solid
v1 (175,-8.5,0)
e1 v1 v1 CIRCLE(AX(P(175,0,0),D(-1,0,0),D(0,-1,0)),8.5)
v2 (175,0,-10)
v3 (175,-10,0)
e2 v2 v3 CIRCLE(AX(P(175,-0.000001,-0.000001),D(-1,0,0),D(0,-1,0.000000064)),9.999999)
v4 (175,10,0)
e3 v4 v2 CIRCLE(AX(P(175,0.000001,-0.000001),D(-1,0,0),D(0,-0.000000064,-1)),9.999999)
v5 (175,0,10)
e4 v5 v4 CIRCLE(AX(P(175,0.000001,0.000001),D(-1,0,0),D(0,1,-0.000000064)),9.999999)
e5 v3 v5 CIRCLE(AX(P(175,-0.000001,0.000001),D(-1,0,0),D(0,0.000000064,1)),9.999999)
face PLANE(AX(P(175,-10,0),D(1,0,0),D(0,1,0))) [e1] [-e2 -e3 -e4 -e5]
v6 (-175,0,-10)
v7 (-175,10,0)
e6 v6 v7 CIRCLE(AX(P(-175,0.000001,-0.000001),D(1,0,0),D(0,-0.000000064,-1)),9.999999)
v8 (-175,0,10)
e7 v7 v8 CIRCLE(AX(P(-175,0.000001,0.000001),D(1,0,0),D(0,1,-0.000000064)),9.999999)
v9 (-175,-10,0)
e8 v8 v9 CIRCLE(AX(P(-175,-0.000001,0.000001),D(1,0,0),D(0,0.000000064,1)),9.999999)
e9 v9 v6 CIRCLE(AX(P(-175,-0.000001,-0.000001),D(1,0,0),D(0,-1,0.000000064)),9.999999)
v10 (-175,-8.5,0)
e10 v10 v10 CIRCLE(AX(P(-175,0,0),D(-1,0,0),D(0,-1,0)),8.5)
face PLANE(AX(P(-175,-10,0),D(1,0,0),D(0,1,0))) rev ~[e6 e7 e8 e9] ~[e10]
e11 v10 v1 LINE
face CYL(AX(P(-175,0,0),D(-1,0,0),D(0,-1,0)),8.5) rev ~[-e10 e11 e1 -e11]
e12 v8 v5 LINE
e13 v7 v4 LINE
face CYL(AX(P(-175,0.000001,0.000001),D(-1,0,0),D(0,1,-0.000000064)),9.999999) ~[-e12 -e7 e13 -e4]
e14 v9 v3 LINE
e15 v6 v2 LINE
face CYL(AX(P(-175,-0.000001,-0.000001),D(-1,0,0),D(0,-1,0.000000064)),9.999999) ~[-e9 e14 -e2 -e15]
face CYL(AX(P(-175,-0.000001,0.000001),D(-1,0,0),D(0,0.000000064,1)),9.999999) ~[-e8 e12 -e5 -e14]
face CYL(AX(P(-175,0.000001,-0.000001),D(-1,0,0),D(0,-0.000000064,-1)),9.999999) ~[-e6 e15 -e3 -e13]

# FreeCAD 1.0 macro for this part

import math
import FreeCAD as App
import Part
import Sketcher
Q = App.Units.Quantity

doc = App.newDocument("Part")
body = doc.addObject("PartDesign::Body", "Body")

# Sketch on XY plane
sketch1 = doc.addObject("Sketcher::SketchObject", "Sketch")
body.addObject(sketch1)
sketch1.AttachmentSupport = (doc.XY_Plane, [""])
sketch1.MapMode = "FlatFace"
sketch1.addGeometry(Part.LineSegment(App.Vector(-175, 10, 0), App.Vector(-175, -10, 0)), False)
sketch1.addGeometry(Part.LineSegment(App.Vector(-175, -10, 0), App.Vector(175, -10, 0)), False)
sketch1.addGeometry(Part.LineSegment(App.Vector(175, -10, 0), App.Vector(175, 10, 0)), False)
sketch1.addGeometry(Part.LineSegment(App.Vector(175, 10, 0), App.Vector(-175, 10, 0)), False)
sketch1.addConstraint(Sketcher.Constraint("Coincident", 0, 2, 1, 1))
sketch1.addConstraint(Sketcher.Constraint("Coincident", 1, 2, 2, 1))
sketch1.addConstraint(Sketcher.Constraint("Coincident", 2, 2, 3, 1))
sketch1.addConstraint(Sketcher.Constraint("Coincident", 3, 2, 0, 1))
sketch1.addConstraint(Sketcher.Constraint("Vertical", 0))
sketch1.addConstraint(Sketcher.Constraint("Horizontal", 1))
sketch1.addConstraint(Sketcher.Constraint("Vertical", 2))
sketch1.addConstraint(Sketcher.Constraint("Horizontal", 3))
sketch1.addConstraint(Sketcher.Constraint("Symmetric", 0, 2, 2, 2, -1, 1))
sketch1.addConstraint(Sketcher.Constraint("DistanceX", 1, 1, 1, 2, Q("350 mm")))
sketch1.addConstraint(Sketcher.Constraint("DistanceY", 0, 2, 0, 1, Q("20 mm")))
pad1 = doc.addObject("PartDesign::Pad", "Pad")
body.addObject(pad1)
pad1.Profile = sketch1
pad1.Type = "TwoLengths"
pad1.Length = 10
pad1.Length2 = 10

# Sketch on YZ plane
sketch2 = doc.addObject("Sketcher::SketchObject", "Sketch001")
body.addObject(sketch2)
sketch2.AttachmentSupport = (doc.YZ_Plane, [""])
sketch2.MapMode = "FlatFace"
sketch2.AttachmentOffset = App.Placement(App.Vector(0, 0, -175), App.Rotation())
sketch2.addGeometry(Part.ArcOfCircle(Part.Circle(App.Vector(0, 0, 0), App.Vector(0, 0, 1), 10), math.radians(90), math.radians(180)), False)
sketch2.addGeometry(Part.LineSegment(App.Vector(-10, 0, 0), App.Vector(-10, 10, 0)), False)
sketch2.addGeometry(Part.LineSegment(App.Vector(-10, 10, 0), App.Vector(0, 10, 0)), False)
sketch2.addGeometry(Part.LineSegment(App.Vector(-10, -10, 0), App.Vector(-10, 0, 0)), False)
sketch2.addGeometry(Part.ArcOfCircle(Part.Circle(App.Vector(0, 0, 0), App.Vector(0, 0, 1), 10), math.radians(180), math.radians(270)), False)
sketch2.addGeometry(Part.LineSegment(App.Vector(0, -10, 0), App.Vector(-10, -10, 0)), False)
sketch2.addGeometry(Part.ArcOfCircle(Part.Circle(App.Vector(0, 0, 0), App.Vector(0, 0, 1), 10), math.radians(0), math.radians(90)), False)
sketch2.addGeometry(Part.LineSegment(App.Vector(0, 10, 0), App.Vector(10, 10, 0)), False)
sketch2.addGeometry(Part.LineSegment(App.Vector(10, 10, 0), App.Vector(10, 0, 0)), False)
sketch2.addGeometry(Part.LineSegment(App.Vector(10, -10, 0), App.Vector(0, -10, 0)), False)
sketch2.addGeometry(Part.ArcOfCircle(Part.Circle(App.Vector(0, 0, 0), App.Vector(0, 0, 1), 10), math.radians(-90), math.radians(0)), False)
sketch2.addGeometry(Part.LineSegment(App.Vector(10, 0, 0), App.Vector(10, -10, 0)), False)
sketch2.addGeometry(Part.Circle(App.Vector(0, 0, 0), App.Vector(0, 0, 1), 8), False)
sketch2.addConstraint(Sketcher.Constraint("Tangent", 0, 2, 1, 1))
sketch2.addConstraint(Sketcher.Constraint("Coincident", 1, 2, 2, 1))
sketch2.addConstraint(Sketcher.Constraint("Tangent", 2, 2, 0, 1))
sketch2.addConstraint(Sketcher.Constraint("Tangent", 3, 2, 4, 1))
sketch2.addConstraint(Sketcher.Constraint("Tangent", 4, 2, 5, 1))
sketch2.addConstraint(Sketcher.Constraint("Coincident", 5, 2, 3, 1))
sketch2.addConstraint(Sketcher.Constraint("Tangent", 6, 2, 7, 1))
sketch2.addConstraint(Sketcher.Constraint("Coincident", 7, 2, 8, 1))
sketch2.addConstraint(Sketcher.Constraint("Tangent", 8, 2, 6, 1))
sketch2.addConstraint(Sketcher.Constraint("Tangent", 9, 2, 10, 1))
sketch2.addConstraint(Sketcher.Constraint("Tangent", 10, 2, 11, 1))
sketch2.addConstraint(Sketcher.Constraint("Coincident", 11, 2, 9, 1))
sketch2.addConstraint(Sketcher.Constraint("Vertical", 1))
sketch2.addConstraint(Sketcher.Constraint("Horizontal", 2))
sketch2.addConstraint(Sketcher.Constraint("Vertical", 3))
sketch2.addConstraint(Sketcher.Constraint("Horizontal", 5))
sketch2.addConstraint(Sketcher.Constraint("Horizontal", 7))
sketch2.addConstraint(Sketcher.Constraint("Vertical", 8))
sketch2.addConstraint(Sketcher.Constraint("Horizontal", 9))
sketch2.addConstraint(Sketcher.Constraint("Vertical", 11))
sketch2.addConstraint(Sketcher.Constraint("Coincident", 0, 3, -1, 1))
sketch2.addConstraint(Sketcher.Constraint("Coincident", 4, 3, -1, 1))
sketch2.addConstraint(Sketcher.Constraint("Coincident", 6, 3, -1, 1))
sketch2.addConstraint(Sketcher.Constraint("Coincident", 10, 3, -1, 1))
sketch2.addConstraint(Sketcher.Constraint("Coincident", 12, 3, -1, 1))
sketch2.addConstraint(Sketcher.Constraint("Equal", 0, 4))
sketch2.addConstraint(Sketcher.Constraint("Equal", 4, 6))
sketch2.addConstraint(Sketcher.Constraint("Equal", 6, 10))
sketch2.addConstraint(Sketcher.Constraint("Diameter", 12, Q("17 mm")))
sketch2.addConstraint(Sketcher.Constraint("Radius", 0, Q("9.999999 mm")))
pocket1 = doc.addObject("PartDesign::Pocket", "Pocket")
body.addObject(pocket1)
pocket1.Profile = sketch2
pocket1.Length = 355.6
pocket1.Reversed = True

doc.recompute()
